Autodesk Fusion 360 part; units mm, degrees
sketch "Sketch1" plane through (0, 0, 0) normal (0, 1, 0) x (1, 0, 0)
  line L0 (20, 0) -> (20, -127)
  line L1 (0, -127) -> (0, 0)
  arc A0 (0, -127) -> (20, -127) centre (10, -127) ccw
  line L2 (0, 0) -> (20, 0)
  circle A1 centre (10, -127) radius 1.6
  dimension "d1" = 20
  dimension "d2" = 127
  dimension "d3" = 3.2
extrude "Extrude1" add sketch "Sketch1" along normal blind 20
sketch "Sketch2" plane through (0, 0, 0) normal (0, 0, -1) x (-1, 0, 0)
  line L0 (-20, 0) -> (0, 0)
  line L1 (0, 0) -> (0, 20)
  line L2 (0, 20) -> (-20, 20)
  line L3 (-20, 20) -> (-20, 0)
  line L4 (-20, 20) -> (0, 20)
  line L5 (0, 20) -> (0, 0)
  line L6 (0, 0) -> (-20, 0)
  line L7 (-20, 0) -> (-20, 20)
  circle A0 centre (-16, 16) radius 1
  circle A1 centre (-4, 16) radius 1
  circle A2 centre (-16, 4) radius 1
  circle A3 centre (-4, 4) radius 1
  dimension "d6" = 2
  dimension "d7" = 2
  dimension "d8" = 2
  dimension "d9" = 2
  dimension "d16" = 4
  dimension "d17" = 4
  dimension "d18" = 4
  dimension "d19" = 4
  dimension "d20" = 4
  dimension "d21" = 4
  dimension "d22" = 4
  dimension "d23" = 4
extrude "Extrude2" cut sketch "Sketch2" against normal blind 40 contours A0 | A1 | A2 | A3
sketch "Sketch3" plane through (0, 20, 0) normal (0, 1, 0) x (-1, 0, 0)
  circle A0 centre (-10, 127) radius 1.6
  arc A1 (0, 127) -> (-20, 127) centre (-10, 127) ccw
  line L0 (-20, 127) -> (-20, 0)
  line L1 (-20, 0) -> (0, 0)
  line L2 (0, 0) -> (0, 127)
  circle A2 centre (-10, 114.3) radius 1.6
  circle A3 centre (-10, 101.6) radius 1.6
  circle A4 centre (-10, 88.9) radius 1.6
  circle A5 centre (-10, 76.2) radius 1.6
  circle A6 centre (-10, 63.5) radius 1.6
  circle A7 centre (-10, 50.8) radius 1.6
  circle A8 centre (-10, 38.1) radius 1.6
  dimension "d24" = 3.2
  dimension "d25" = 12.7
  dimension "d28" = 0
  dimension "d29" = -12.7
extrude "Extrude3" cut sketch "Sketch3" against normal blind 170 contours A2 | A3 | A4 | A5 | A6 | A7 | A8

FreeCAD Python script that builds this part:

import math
import FreeCAD as App
import Part
import Sketcher
from FreeCAD import Vector
Q = App.Units.Quantity

doc = App.newDocument("Part")
body = doc.addObject("PartDesign::Body", "Body")

# Sketch on XZ plane
sketch1 = body.newObject("Sketcher::SketchObject", "Sketch")
sketch1.AttachmentSupport = (doc.getObject("XZ_Plane"), [""])
sketch1.MapMode = "FlatFace"
sketch1.addGeometry(Part.LineSegment(Vector(20, 127, 0), Vector(20, 0, 0)), False)
sketch1.addGeometry(Part.LineSegment(Vector(20, 0, 0), Vector(0, 0, 0)), False)
sketch1.addGeometry(Part.LineSegment(Vector(0, 0, 0), Vector(0, 127, 0)), False)
sketch1.addGeometry(Part.ArcOfCircle(Part.Circle(Vector(10, 127, 0), Vector(0, 0, 1), 10), math.radians(0), math.radians(180)), False)
sketch1.addGeometry(Part.Circle(Vector(10, 127, 0), Vector(0, 0, 1), 1.6), False)
sketch1.addConstraint(Sketcher.Constraint("Coincident", 0, 2, 1, 1))
sketch1.addConstraint(Sketcher.Constraint("Coincident", 1, 2, 2, 1))
sketch1.addConstraint(Sketcher.Constraint("Tangent", 2, 2, 3, 2))
sketch1.addConstraint(Sketcher.Constraint("Tangent", 3, 1, 0, 1))
sketch1.addConstraint(Sketcher.Constraint("Vertical", 0))
sketch1.addConstraint(Sketcher.Constraint("Horizontal", 1))
sketch1.addConstraint(Sketcher.Constraint("Vertical", 2))
sketch1.addConstraint(Sketcher.Constraint("Coincident", 1, 2, -1, 1))
sketch1.addConstraint(Sketcher.Constraint("Coincident", 4, 3, 3, 3))
sketch1.addConstraint(Sketcher.Constraint("Radius", 3, Q("10 mm")))
sketch1.addConstraint(Sketcher.Constraint("Diameter", 4, Q("3.2 mm")))
sketch1.addConstraint(Sketcher.Constraint("DistanceY", 0, 2, 0, 1, Q("127 mm")))
pad1 = body.newObject("PartDesign::Pad", "Pad")
pad1.Profile = sketch1
pad1.Length = 20
pad1.Reversed = True

# Sketch on XY plane
sketch2 = body.newObject("Sketcher::SketchObject", "Sketch001")
sketch2.AttachmentSupport = (doc.getObject("XY_Plane"), [""])
sketch2.MapMode = "FlatFace"
sketch2.addGeometry(Part.Circle(Vector(16, 16, 0), Vector(0, 0, 1), 1), False)
sketch2.addGeometry(Part.Circle(Vector(4, 16, 0), Vector(0, 0, 1), 1), False)
sketch2.addGeometry(Part.Circle(Vector(16, 4, 0), Vector(0, 0, 1), 1), False)
sketch2.addGeometry(Part.Circle(Vector(4, 4, 0), Vector(0, 0, 1), 1), False)
sketch2.addConstraint(Sketcher.Constraint("Equal", 0, 1))
sketch2.addConstraint(Sketcher.Constraint("Equal", 1, 2))
sketch2.addConstraint(Sketcher.Constraint("Equal", 2, 3))
sketch2.addConstraint(Sketcher.Constraint("Horizontal", 0, 3, 1, 3))
sketch2.addConstraint(Sketcher.Constraint("Horizontal", 2, 3, 3, 3))
sketch2.addConstraint(Sketcher.Constraint("Vertical", 0, 3, 2, 3))
sketch2.addConstraint(Sketcher.Constraint("Vertical", 1, 3, 3, 3))
sketch2.addConstraint(Sketcher.Constraint("Diameter", 0, Q("2 mm")))
sketch2.addConstraint(Sketcher.Constraint("DistanceX", -1, 1, 1, 3, Q("4 mm")))
sketch2.addConstraint(Sketcher.Constraint("DistanceY", -1, 1, 2, 3, Q("4 mm")))
sketch2.addConstraint(Sketcher.Constraint("DistanceX", -1, 1, 0, 3, Q("16 mm")))
sketch2.addConstraint(Sketcher.Constraint("DistanceY", -1, 1, 0, 3, Q("16 mm")))
pocket1 = body.newObject("PartDesign::Pocket", "Pocket")
pocket1.Profile = sketch2
pocket1.Length = 40
pocket1.Reversed = True

# Sketch on XZ plane
sketch3 = body.newObject("Sketcher::SketchObject", "Sketch002")
sketch3.AttachmentSupport = (doc.getObject("XZ_Plane"), [""])
sketch3.MapMode = "FlatFace"
sketch3.AttachmentOffset = App.Placement(Vector(0, 0, -20), App.Rotation())
sketch3.addGeometry(Part.Circle(Vector(10, 114.3, 0), Vector(0, 0, 1), 1.6), False)
sketch3.addGeometry(Part.Circle(Vector(10, 101.6, 0), Vector(0, 0, 1), 1.6), False)
sketch3.addGeometry(Part.Circle(Vector(10, 88.9, 0), Vector(0, 0, 1), 1.6), False)
sketch3.addGeometry(Part.Circle(Vector(10, 76.2, 0), Vector(0, 0, 1), 1.6), False)
sketch3.addGeometry(Part.Circle(Vector(10, 63.5, 0), Vector(0, 0, 1), 1.6), False)
sketch3.addGeometry(Part.Circle(Vector(10, 50.8, 0), Vector(0, 0, 1), 1.6), False)
sketch3.addGeometry(Part.Circle(Vector(10, 38.1, 0), Vector(0, 0, 1), 1.6), False)
sketch3.addConstraint(Sketcher.Constraint("Equal", 0, 1))
sketch3.addConstraint(Sketcher.Constraint("Equal", 1, 2))
sketch3.addConstraint(Sketcher.Constraint("Equal", 2, 3))
sketch3.addConstraint(Sketcher.Constraint("Equal", 3, 4))
sketch3.addConstraint(Sketcher.Constraint("Equal", 4, 5))
sketch3.addConstraint(Sketcher.Constraint("Equal", 5, 6))
sketch3.addConstraint(Sketcher.Constraint("Vertical", 0, 3, 1, 3))
sketch3.addConstraint(Sketcher.Constraint("Vertical", 1, 3, 2, 3))
sketch3.addConstraint(Sketcher.Constraint("Vertical", 2, 3, 3, 3))
sketch3.addConstraint(Sketcher.Constraint("Vertical", 3, 3, 4, 3))
sketch3.addConstraint(Sketcher.Constraint("Vertical", 4, 3, 5, 3))
sketch3.addConstraint(Sketcher.Constraint("Vertical", 5, 3, 6, 3))
sketch3.addConstraint(Sketcher.Constraint("Diameter", 0, Q("3.2 mm")))
sketch3.addConstraint(Sketcher.Constraint("DistanceY", 1, 3, 0, 3, Q("12.7 mm")))
sketch3.addConstraint(Sketcher.Constraint("DistanceY", 2, 3, 1, 3, Q("12.7 mm")))
sketch3.addConstraint(Sketcher.Constraint("DistanceY", 3, 3, 2, 3, Q("12.7 mm")))
sketch3.addConstraint(Sketcher.Constraint("DistanceY", 4, 3, 3, 3, Q("12.7 mm")))
sketch3.addConstraint(Sketcher.Constraint("DistanceY", 5, 3, 4, 3, Q("12.7 mm")))
sketch3.addConstraint(Sketcher.Constraint("DistanceY", 6, 3, 5, 3, Q("12.7 mm")))
sketch3.addConstraint(Sketcher.Constraint("DistanceX", -1, 1, 0, 3, Q("10 mm")))
sketch3.addConstraint(Sketcher.Constraint("DistanceY", -1, 1, 0, 3, Q("114.3 mm")))
pocket2 = body.newObject("PartDesign::Pocket", "Pocket001")
pocket2.Profile = sketch3
pocket2.Length = 170
pocket2.Reversed = True

doc.recompute()
